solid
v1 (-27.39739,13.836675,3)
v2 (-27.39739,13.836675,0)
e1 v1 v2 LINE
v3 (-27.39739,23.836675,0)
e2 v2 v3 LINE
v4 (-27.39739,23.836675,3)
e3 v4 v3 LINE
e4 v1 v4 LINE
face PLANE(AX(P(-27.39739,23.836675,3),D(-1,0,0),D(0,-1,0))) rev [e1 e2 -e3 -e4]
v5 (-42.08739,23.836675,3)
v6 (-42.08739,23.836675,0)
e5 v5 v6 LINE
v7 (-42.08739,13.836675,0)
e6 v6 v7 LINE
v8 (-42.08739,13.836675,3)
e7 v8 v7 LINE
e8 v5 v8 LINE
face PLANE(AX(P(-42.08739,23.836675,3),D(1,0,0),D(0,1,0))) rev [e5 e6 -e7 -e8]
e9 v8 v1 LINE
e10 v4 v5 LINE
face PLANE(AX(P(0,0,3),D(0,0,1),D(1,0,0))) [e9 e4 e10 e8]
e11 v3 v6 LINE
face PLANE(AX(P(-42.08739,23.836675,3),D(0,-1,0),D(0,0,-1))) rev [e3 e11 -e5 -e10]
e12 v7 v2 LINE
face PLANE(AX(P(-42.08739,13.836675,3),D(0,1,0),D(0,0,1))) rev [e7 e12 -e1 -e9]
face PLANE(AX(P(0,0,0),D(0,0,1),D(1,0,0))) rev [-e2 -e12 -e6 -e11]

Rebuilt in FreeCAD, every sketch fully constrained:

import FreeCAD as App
import Part
import Sketcher

V = App.Vector
Q = App.Units.Quantity

doc = App.newDocument("Part")
params = doc.addObject("Spreadsheet::Sheet", "Params")
for row, (alias, value) in enumerate([
    ("sketch1_height", "10 mm"),
    ("sketch1_width", "14.69 mm"),
    ("pad1_length", "3 mm"),
], start=1):
    params.set(f"A{row}", alias)
    params.set(f"B{row}", "=" + value)
    params.setAlias(f"B{row}", alias)

body = doc.addObject("PartDesign::Body", "Body")

sketch1 = body.newObject("Sketcher::SketchObject", "Sketch")
sketch1.AttachmentSupport = (doc.getObject("XY_Plane"), [""])
sketch1.MapMode = "FlatFace"
sketch1.addGeometry([
    Part.LineSegment(V(-42, 24, 0), V(-42, 14, 0)),
    Part.LineSegment(V(-42, 14, 0), V(-27, 14, 0)),
    Part.LineSegment(V(-27, 14, 0), V(-27, 24, 0)),
    Part.LineSegment(V(-27, 24, 0), V(-42, 24, 0)),
], False)
sketch1.addConstraint([
    Sketcher.Constraint("Coincident", 0, 2, 1, 1),
    Sketcher.Constraint("Coincident", 1, 2, 2, 1),
    Sketcher.Constraint("Coincident", 2, 2, 3, 1),
    Sketcher.Constraint("Coincident", 3, 2, 0, 1),
    Sketcher.Constraint("Vertical", 0),
    Sketcher.Constraint("Horizontal", 1),
    Sketcher.Constraint("Vertical", 2),
    Sketcher.Constraint("Horizontal", 3),
    Sketcher.Constraint("DistanceY", 0, 2, 0, 1, Q("10 mm")),
    Sketcher.Constraint("DistanceX", 1, 1, 1, 2, Q("14.69 mm")),
    Sketcher.Constraint("DistanceX", 0, 2, -1, 1, Q("42.08739 mm")),
    Sketcher.Constraint("DistanceY", -1, 1, 0, 2, Q("13.836675 mm")),
])
sketch1.setExpression("Constraints[8]", "Params.sketch1_height")
sketch1.setExpression("Constraints[9]", "Params.sketch1_width")
pad1 = body.newObject("PartDesign::Pad", "Pad")
pad1.Profile = sketch1
pad1.setExpression("Length", "Params.pad1_length")

doc.recompute()
